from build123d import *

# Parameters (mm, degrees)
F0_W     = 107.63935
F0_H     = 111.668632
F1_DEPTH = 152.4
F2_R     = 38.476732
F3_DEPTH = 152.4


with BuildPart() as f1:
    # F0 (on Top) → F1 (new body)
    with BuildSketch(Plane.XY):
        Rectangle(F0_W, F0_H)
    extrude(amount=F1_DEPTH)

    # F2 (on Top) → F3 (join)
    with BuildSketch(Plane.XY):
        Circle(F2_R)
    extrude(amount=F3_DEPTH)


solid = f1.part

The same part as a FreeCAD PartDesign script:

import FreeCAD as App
import Part
import Sketcher
from FreeCAD import Vector


def add_polygon(sketch, points):
    """Adds a closed chain of lines whose ends are joined by coincident constraints."""
    first, n = sketch.GeometryCount, len(points)
    for a, b in zip(points, points[1:] + points[:1]):
        sketch.addGeometry(Part.LineSegment(App.Vector(*a, 0), App.Vector(*b, 0)), False)
    for i in range(n):
        sketch.addConstraint(Sketcher.Constraint("Coincident", first + i, 2, first + (i + 1) % n, 1))

doc = App.newDocument("Part")
params = doc.addObject("Spreadsheet::Sheet", "Params")
for row, (alias, value) in enumerate([
    ("pad1_length", "6 in"),
    ("pad2_length", "6 in"),
], start=1):
    params.set(f"A{row}", alias)
    params.set(f"B{row}", "=" + value)
    params.setAlias(f"B{row}", alias)

body = doc.addObject("PartDesign::Body", "Body")

# Sketch on XY plane
sketch1 = doc.addObject("Sketcher::SketchObject", "Sketch")
body.addObject(sketch1)
sketch1.AttachmentSupport = (doc.XY_Plane, [""])
sketch1.MapMode = "FlatFace"
add_polygon(sketch1, [(-54, 56), (-54, -56), (54, -56), (54, 56)])  # lines 0-3
sketch1.addConstraint([
    Sketcher.Constraint("Vertical", 0),
    Sketcher.Constraint("Horizontal", 1),
    Sketcher.Constraint("Vertical", 2),
    Sketcher.Constraint("Horizontal", 3),
    Sketcher.Constraint("Symmetric", 0, 2, 2, 2, -1, 1),
    Sketcher.Constraint("DistanceX", 1, 1, 1, 2, 107.63935),
    Sketcher.Constraint("DistanceY", 0, 2, 0, 1, 111.668632),
])
pad1 = doc.addObject("PartDesign::Pad", "Pad")
body.addObject(pad1)
pad1.Profile = sketch1
pad1.setExpression("Length", "Params.pad1_length")

# Sketch on XY plane
sketch2 = doc.addObject("Sketcher::SketchObject", "Sketch001")
body.addObject(sketch2)
sketch2.AttachmentSupport = (doc.XY_Plane, [""])
sketch2.MapMode = "FlatFace"
sketch2.addGeometry(Part.Circle(Vector(0, 0, 0), Vector(0, 0, 1), 38), False)
sketch2.addConstraint([
    Sketcher.Constraint("Coincident", 0, 3, -1, 1),
    Sketcher.Constraint("Diameter", 0, 76.953464),
])
pad2 = doc.addObject("PartDesign::Pad", "Pad001")
body.addObject(pad2)
pad2.Profile = sketch2
pad2.setExpression("Length", "Params.pad2_length")

doc.recompute()
